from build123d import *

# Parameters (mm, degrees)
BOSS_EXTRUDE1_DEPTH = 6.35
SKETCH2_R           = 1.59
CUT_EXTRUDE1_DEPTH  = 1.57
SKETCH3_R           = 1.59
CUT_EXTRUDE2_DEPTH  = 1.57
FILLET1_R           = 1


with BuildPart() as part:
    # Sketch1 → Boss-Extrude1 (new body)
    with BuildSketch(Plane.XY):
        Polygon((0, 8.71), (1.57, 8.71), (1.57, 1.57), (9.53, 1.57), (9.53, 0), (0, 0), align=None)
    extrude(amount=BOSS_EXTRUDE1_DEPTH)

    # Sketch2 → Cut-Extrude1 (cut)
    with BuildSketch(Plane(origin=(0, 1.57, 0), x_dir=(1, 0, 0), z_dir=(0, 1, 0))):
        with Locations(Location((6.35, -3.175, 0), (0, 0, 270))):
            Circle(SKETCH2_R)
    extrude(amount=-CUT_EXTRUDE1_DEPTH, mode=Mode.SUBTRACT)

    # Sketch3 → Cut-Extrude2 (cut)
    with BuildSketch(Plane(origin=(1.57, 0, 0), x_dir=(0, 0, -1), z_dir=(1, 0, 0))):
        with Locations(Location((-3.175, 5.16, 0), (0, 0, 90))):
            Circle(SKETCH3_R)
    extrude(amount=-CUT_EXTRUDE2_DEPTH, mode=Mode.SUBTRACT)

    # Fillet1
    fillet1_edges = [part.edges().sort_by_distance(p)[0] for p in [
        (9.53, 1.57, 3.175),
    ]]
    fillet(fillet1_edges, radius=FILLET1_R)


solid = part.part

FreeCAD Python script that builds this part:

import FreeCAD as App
import Part
import Sketcher

V = App.Vector


def edges_at(feature, points):
    """Names of the edges that pass closest to the given points."""
    edges = feature.Shape.Edges
    near = lambda p: min(range(len(edges)), key=lambda i: edges[i].distToShape(Part.Vertex(*p))[0])
    return sorted({f"Edge{near(p) + 1}" for p in points})


def add_polygon(sketch, points):
    """Adds a closed chain of lines whose ends are joined by coincident constraints."""
    first, n = sketch.GeometryCount, len(points)
    for a, b in zip(points, points[1:] + points[:1]):
        sketch.addGeometry(Part.LineSegment(App.Vector(*a, 0), App.Vector(*b, 0)), False)
    for i in range(n):
        sketch.addConstraint(Sketcher.Constraint("Coincident", first + i, 2, first + (i + 1) % n, 1))

doc = App.newDocument("Part")
body = doc.addObject("PartDesign::Body", "Body")

sketch1 = body.newObject("Sketcher::SketchObject", "Sketch")
sketch1.AttachmentSupport = (doc.getObject("XY_Plane"), [""])
sketch1.MapMode = "FlatFace"
add_polygon(sketch1, [(1.6, 8.7), (0, 8.7), (0, 0), (9.5, 0), (9.5, 1.6), (1.6, 1.6)])
sketch1.addConstraint([
    Sketcher.Constraint("Horizontal", 0),
    Sketcher.Constraint("Vertical", 1),
    Sketcher.Constraint("Horizontal", 2),
    Sketcher.Constraint("Vertical", 3),
    Sketcher.Constraint("Horizontal", 4),
    Sketcher.Constraint("Vertical", 5),
    Sketcher.Constraint("Coincident", 1, 2, -1, 1),
    Sketcher.Constraint("Equal", 0, 3),
    Sketcher.Constraint("DistanceX", 0, 2, 0, 1, 1.57),
    Sketcher.Constraint("DistanceX", 2, 1, 2, 2, 9.53),
    Sketcher.Constraint("DistanceY", 1, 2, 1, 1, 8.71),
])
pad1 = body.newObject("PartDesign::Pad", "Pad")
pad1.Profile = sketch1
pad1.Length = 6.35

sketch2 = body.newObject("Sketcher::SketchObject", "Sketch001")
sketch2.AttachmentSupport = (doc.getObject("XZ_Plane"), [""])
sketch2.MapMode = "FlatFace"
sketch2.AttachmentOffset = App.Placement(V(0, 0, -1.57), App.Rotation())
sketch2.addGeometry(Part.Circle(V(6.3, 3.2, 0), V(0, 0, 1), 1.6), False)
sketch2.addConstraint([
    Sketcher.Constraint("Diameter", 0, 3.18),
    Sketcher.Constraint("DistanceX", -1, 1, 0, 3, 6.35),
    Sketcher.Constraint("DistanceY", -1, 1, 0, 3, 3.175),
])
pocket1 = body.newObject("PartDesign::Pocket", "Pocket")
pocket1.Profile = sketch2
pocket1.Length = 1.57
pocket1.Reversed = True

sketch3 = body.newObject("Sketcher::SketchObject", "Sketch002")
sketch3.AttachmentSupport = (doc.getObject("YZ_Plane"), [""])
sketch3.MapMode = "FlatFace"
sketch3.AttachmentOffset = App.Placement(V(0, 0, 1.57), App.Rotation())
sketch3.addGeometry(Part.Circle(V(5.2, 3.2, 0), V(0, 0, 1), 1.6), False)
sketch3.addConstraint([
    Sketcher.Constraint("Diameter", 0, 3.18),
    Sketcher.Constraint("DistanceX", -1, 1, 0, 3, 5.16),
    Sketcher.Constraint("DistanceY", -1, 1, 0, 3, 3.175),
])
pocket2 = body.newObject("PartDesign::Pocket", "Pocket001")
pocket2.Profile = sketch3
pocket2.Length = 1.57
doc.recompute()

fillet = body.newObject("PartDesign::Fillet", "Fillet")
fillet.Base = (pocket2, edges_at(pocket2, [(9.53, 1.57, 3.175)]))
fillet.Radius = 1

doc.recompute()
